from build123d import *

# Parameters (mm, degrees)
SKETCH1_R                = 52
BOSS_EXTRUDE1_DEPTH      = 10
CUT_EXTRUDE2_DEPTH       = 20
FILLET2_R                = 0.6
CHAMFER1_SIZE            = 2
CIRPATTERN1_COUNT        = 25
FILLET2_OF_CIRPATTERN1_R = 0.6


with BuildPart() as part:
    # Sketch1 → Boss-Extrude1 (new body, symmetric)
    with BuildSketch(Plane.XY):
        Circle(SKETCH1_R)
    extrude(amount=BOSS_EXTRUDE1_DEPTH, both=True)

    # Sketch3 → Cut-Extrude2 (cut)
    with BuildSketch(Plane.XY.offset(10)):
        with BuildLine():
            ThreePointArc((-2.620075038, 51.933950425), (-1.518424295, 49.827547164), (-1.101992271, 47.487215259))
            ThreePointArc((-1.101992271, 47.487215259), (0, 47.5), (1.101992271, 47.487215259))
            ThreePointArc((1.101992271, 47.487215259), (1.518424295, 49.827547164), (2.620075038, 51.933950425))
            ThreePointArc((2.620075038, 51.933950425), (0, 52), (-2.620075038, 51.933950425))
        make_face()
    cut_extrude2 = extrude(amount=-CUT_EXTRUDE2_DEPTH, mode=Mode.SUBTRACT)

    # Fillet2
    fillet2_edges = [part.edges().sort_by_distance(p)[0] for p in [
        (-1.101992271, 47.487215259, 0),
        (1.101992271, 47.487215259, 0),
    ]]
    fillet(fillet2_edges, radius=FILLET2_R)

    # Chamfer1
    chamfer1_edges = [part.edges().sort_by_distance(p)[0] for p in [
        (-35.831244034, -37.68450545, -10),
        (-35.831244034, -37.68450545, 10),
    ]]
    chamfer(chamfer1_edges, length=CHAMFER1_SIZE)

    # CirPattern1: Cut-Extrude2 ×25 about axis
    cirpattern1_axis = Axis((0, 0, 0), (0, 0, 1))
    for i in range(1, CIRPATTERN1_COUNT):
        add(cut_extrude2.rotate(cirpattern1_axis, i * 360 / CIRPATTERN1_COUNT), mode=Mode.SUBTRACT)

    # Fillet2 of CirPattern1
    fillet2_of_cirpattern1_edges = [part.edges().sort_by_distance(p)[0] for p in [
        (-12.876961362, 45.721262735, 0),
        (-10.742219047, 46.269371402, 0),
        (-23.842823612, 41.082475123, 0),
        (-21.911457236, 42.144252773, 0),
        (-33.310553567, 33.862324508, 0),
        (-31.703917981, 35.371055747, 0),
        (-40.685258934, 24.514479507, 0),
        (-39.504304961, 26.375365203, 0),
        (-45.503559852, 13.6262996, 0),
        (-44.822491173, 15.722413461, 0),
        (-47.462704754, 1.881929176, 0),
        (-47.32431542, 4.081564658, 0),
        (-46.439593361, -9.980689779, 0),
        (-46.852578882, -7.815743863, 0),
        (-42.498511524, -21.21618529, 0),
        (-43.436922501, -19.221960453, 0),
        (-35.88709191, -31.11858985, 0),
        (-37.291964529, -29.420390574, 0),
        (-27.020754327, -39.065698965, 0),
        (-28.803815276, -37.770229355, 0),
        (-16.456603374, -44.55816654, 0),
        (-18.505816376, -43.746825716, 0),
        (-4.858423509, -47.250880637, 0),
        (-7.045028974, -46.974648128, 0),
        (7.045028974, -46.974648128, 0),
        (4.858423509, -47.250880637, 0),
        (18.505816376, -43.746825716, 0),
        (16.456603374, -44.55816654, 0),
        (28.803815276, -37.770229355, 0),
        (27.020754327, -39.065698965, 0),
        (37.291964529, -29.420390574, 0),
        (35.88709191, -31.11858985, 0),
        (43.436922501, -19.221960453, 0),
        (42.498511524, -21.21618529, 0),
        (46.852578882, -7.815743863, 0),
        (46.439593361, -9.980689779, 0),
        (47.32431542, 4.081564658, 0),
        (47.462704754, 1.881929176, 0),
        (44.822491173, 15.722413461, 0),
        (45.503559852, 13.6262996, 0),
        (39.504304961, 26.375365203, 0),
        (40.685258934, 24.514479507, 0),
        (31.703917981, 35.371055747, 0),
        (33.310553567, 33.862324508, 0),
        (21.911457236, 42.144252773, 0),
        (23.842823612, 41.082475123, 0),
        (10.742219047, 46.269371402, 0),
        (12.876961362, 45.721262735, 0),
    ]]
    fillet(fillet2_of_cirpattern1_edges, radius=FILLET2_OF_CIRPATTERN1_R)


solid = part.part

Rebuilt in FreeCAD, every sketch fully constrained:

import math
import FreeCAD as App
import Part
import Sketcher
from FreeCAD import Vector


def edges_at(feature, points):
    """Names of the edges that pass closest to the given points."""
    edges = feature.Shape.Edges
    near = lambda p: min(range(len(edges)), key=lambda i: edges[i].distToShape(Part.Vertex(*p))[0])
    return sorted({f"Edge{near(p) + 1}" for p in points})

doc = App.newDocument("Part")
body = doc.addObject("PartDesign::Body", "Body")

sketch1 = body.newObject("Sketcher::SketchObject", "Sketch")
sketch1.AttachmentSupport = (doc.getObject("XY_Plane"), [""])
sketch1.MapMode = "FlatFace"
sketch1.addGeometry(Part.Circle(Vector(0, 0, 0), Vector(0, 0, 1), 52), False)
sketch1.addConstraint([
    Sketcher.Constraint("Coincident", 0, 3, -1, 1),
    Sketcher.Constraint("Diameter", 0, 104.0),
])
pad1 = body.newObject("PartDesign::Pad", "Pad")
pad1.Profile = sketch1
pad1.Length = 20
pad1.Midplane = True

sketch2 = body.newObject("Sketcher::SketchObject", "Sketch001")
sketch2.AttachmentSupport = (doc.getObject("XY_Plane"), [""])
sketch2.MapMode = "FlatFace"
sketch2.AttachmentOffset = App.Placement(Vector(0, 0, 10), App.Rotation())
sketch2.addGeometry([
    Part.ArcOfCircle(Part.Circle(Vector(-8.9, 47.3, 0), Vector(0, 0, 1), 7.8), math.radians(1), math.radians(36)),
    Part.ArcOfCircle(Part.Circle(Vector(0, 0, 0), Vector(0, 0, 1), 47.5), math.radians(88.67), math.radians(91.33)),
    Part.ArcOfCircle(Part.Circle(Vector(8.9, 47.3, 0), Vector(0, 0, 1), 7.8), math.radians(144), math.radians(179)),
    Part.ArcOfCircle(Part.Circle(Vector(0, 0, 0), Vector(0, 0, 1), 52), math.radians(87.11), math.radians(92.89)),
], False)
sketch2.addConstraint([
    Sketcher.Constraint("Coincident", 0, 1, 1, 2),
    Sketcher.Constraint("Coincident", 1, 1, 2, 2),
    Sketcher.Constraint("Coincident", 2, 1, 3, 1),
    Sketcher.Constraint("Coincident", 3, 2, 0, 2),
    Sketcher.Constraint("Coincident", 1, 3, -1, 1),
    Sketcher.Constraint("Coincident", 3, 3, -1, 1),
    Sketcher.Constraint("Equal", 0, 2),
    Sketcher.Constraint("Symmetric", 0, 3, 2, 3, -2),
    Sketcher.Constraint("Radius", 3, 52.0),
    Sketcher.Constraint("Radius", 1, 47.500001),
    Sketcher.Constraint("Radius", 0, 7.804123),
    Sketcher.Constraint("DistanceY", -1, 1, 0, 3, 47.306161),
    Sketcher.Constraint("DistanceY", -1, 1, 2, 1, 51.93395),
])
pocket1 = body.newObject("PartDesign::Pocket", "Pocket")
pocket1.Profile = sketch2
pocket1.Length = 20
doc.recompute()

fillet = body.newObject("PartDesign::Fillet", "Fillet")
fillet.Base = (pocket1, edges_at(pocket1, [(-1.102, 47.487, 0), (1.102, 47.487, 0)]))
fillet.Radius = 0.6
doc.recompute()

chamfer = body.newObject("PartDesign::Chamfer", "Chamfer")
chamfer.Base = (fillet, edges_at(fillet, [(-35.831, -37.685, -10), (-35.831, -37.685, 10)]))
chamfer.Size = 2
doc.recompute()

polarpattern = body.newObject("PartDesign::PolarPattern", "PolarPattern")
polarpattern.Originals = [pocket1]
polarpattern.Axis = (doc.getObject("Z_Axis"), [""])
polarpattern.Angle = 360
polarpattern.Occurrences = 25
body.Tip = polarpattern
doc.recompute()

fillet2 = body.newObject("PartDesign::Fillet", "Fillet001")
fillet2.Base = (polarpattern, edges_at(polarpattern, [
    (-12.877, 45.721, 0),
    (-10.742, 46.269, 0),
    (-23.843, 41.082, 0),
    (-21.911, 42.144, 0),
    (-33.311, 33.862, 0),
    (-31.704, 35.371, 0),
    (-40.685, 24.514, 0),
    (-39.504, 26.375, 0),
    (-45.504, 13.626, 0),
    (-44.822, 15.722, 0),
    (-47.463, 1.882, 0),
    (-47.324, 4.082, 0),
    (-46.44, -9.981, 0),
    (-46.853, -7.816, 0),
    (-42.499, -21.216, 0),
    (-43.437, -19.222, 0),
    (-35.887, -31.119, 0),
    (-37.292, -29.42, 0),
    (-27.021, -39.066, 0),
    (-28.804, -37.77, 0),
    (-16.457, -44.558, 0),
    (-18.506, -43.747, 0),
    (-4.858, -47.251, 0),
    (-7.045, -46.975, 0),
    (7.045, -46.975, 0),
    (4.858, -47.251, 0),
    (18.506, -43.747, 0),
    (16.457, -44.558, 0),
    (28.804, -37.77, 0),
    (27.021, -39.066, 0),
    (37.292, -29.42, 0),
    (35.887, -31.119, 0),
    (43.437, -19.222, 0),
    (42.499, -21.216, 0),
    (46.853, -7.816, 0),
    (46.44, -9.981, 0),
    (47.324, 4.082, 0),
    (47.463, 1.882, 0),
    (44.822, 15.722, 0),
    (45.504, 13.626, 0),
    (39.504, 26.375, 0),
    (40.685, 24.514, 0),
    (31.704, 35.371, 0),
    (33.311, 33.862, 0),
    (21.911, 42.144, 0),
    (23.843, 41.082, 0),
    (10.742, 46.269, 0),
    (12.877, 45.721, 0),
]))
fillet2.Radius = 0.6

doc.recompute()
